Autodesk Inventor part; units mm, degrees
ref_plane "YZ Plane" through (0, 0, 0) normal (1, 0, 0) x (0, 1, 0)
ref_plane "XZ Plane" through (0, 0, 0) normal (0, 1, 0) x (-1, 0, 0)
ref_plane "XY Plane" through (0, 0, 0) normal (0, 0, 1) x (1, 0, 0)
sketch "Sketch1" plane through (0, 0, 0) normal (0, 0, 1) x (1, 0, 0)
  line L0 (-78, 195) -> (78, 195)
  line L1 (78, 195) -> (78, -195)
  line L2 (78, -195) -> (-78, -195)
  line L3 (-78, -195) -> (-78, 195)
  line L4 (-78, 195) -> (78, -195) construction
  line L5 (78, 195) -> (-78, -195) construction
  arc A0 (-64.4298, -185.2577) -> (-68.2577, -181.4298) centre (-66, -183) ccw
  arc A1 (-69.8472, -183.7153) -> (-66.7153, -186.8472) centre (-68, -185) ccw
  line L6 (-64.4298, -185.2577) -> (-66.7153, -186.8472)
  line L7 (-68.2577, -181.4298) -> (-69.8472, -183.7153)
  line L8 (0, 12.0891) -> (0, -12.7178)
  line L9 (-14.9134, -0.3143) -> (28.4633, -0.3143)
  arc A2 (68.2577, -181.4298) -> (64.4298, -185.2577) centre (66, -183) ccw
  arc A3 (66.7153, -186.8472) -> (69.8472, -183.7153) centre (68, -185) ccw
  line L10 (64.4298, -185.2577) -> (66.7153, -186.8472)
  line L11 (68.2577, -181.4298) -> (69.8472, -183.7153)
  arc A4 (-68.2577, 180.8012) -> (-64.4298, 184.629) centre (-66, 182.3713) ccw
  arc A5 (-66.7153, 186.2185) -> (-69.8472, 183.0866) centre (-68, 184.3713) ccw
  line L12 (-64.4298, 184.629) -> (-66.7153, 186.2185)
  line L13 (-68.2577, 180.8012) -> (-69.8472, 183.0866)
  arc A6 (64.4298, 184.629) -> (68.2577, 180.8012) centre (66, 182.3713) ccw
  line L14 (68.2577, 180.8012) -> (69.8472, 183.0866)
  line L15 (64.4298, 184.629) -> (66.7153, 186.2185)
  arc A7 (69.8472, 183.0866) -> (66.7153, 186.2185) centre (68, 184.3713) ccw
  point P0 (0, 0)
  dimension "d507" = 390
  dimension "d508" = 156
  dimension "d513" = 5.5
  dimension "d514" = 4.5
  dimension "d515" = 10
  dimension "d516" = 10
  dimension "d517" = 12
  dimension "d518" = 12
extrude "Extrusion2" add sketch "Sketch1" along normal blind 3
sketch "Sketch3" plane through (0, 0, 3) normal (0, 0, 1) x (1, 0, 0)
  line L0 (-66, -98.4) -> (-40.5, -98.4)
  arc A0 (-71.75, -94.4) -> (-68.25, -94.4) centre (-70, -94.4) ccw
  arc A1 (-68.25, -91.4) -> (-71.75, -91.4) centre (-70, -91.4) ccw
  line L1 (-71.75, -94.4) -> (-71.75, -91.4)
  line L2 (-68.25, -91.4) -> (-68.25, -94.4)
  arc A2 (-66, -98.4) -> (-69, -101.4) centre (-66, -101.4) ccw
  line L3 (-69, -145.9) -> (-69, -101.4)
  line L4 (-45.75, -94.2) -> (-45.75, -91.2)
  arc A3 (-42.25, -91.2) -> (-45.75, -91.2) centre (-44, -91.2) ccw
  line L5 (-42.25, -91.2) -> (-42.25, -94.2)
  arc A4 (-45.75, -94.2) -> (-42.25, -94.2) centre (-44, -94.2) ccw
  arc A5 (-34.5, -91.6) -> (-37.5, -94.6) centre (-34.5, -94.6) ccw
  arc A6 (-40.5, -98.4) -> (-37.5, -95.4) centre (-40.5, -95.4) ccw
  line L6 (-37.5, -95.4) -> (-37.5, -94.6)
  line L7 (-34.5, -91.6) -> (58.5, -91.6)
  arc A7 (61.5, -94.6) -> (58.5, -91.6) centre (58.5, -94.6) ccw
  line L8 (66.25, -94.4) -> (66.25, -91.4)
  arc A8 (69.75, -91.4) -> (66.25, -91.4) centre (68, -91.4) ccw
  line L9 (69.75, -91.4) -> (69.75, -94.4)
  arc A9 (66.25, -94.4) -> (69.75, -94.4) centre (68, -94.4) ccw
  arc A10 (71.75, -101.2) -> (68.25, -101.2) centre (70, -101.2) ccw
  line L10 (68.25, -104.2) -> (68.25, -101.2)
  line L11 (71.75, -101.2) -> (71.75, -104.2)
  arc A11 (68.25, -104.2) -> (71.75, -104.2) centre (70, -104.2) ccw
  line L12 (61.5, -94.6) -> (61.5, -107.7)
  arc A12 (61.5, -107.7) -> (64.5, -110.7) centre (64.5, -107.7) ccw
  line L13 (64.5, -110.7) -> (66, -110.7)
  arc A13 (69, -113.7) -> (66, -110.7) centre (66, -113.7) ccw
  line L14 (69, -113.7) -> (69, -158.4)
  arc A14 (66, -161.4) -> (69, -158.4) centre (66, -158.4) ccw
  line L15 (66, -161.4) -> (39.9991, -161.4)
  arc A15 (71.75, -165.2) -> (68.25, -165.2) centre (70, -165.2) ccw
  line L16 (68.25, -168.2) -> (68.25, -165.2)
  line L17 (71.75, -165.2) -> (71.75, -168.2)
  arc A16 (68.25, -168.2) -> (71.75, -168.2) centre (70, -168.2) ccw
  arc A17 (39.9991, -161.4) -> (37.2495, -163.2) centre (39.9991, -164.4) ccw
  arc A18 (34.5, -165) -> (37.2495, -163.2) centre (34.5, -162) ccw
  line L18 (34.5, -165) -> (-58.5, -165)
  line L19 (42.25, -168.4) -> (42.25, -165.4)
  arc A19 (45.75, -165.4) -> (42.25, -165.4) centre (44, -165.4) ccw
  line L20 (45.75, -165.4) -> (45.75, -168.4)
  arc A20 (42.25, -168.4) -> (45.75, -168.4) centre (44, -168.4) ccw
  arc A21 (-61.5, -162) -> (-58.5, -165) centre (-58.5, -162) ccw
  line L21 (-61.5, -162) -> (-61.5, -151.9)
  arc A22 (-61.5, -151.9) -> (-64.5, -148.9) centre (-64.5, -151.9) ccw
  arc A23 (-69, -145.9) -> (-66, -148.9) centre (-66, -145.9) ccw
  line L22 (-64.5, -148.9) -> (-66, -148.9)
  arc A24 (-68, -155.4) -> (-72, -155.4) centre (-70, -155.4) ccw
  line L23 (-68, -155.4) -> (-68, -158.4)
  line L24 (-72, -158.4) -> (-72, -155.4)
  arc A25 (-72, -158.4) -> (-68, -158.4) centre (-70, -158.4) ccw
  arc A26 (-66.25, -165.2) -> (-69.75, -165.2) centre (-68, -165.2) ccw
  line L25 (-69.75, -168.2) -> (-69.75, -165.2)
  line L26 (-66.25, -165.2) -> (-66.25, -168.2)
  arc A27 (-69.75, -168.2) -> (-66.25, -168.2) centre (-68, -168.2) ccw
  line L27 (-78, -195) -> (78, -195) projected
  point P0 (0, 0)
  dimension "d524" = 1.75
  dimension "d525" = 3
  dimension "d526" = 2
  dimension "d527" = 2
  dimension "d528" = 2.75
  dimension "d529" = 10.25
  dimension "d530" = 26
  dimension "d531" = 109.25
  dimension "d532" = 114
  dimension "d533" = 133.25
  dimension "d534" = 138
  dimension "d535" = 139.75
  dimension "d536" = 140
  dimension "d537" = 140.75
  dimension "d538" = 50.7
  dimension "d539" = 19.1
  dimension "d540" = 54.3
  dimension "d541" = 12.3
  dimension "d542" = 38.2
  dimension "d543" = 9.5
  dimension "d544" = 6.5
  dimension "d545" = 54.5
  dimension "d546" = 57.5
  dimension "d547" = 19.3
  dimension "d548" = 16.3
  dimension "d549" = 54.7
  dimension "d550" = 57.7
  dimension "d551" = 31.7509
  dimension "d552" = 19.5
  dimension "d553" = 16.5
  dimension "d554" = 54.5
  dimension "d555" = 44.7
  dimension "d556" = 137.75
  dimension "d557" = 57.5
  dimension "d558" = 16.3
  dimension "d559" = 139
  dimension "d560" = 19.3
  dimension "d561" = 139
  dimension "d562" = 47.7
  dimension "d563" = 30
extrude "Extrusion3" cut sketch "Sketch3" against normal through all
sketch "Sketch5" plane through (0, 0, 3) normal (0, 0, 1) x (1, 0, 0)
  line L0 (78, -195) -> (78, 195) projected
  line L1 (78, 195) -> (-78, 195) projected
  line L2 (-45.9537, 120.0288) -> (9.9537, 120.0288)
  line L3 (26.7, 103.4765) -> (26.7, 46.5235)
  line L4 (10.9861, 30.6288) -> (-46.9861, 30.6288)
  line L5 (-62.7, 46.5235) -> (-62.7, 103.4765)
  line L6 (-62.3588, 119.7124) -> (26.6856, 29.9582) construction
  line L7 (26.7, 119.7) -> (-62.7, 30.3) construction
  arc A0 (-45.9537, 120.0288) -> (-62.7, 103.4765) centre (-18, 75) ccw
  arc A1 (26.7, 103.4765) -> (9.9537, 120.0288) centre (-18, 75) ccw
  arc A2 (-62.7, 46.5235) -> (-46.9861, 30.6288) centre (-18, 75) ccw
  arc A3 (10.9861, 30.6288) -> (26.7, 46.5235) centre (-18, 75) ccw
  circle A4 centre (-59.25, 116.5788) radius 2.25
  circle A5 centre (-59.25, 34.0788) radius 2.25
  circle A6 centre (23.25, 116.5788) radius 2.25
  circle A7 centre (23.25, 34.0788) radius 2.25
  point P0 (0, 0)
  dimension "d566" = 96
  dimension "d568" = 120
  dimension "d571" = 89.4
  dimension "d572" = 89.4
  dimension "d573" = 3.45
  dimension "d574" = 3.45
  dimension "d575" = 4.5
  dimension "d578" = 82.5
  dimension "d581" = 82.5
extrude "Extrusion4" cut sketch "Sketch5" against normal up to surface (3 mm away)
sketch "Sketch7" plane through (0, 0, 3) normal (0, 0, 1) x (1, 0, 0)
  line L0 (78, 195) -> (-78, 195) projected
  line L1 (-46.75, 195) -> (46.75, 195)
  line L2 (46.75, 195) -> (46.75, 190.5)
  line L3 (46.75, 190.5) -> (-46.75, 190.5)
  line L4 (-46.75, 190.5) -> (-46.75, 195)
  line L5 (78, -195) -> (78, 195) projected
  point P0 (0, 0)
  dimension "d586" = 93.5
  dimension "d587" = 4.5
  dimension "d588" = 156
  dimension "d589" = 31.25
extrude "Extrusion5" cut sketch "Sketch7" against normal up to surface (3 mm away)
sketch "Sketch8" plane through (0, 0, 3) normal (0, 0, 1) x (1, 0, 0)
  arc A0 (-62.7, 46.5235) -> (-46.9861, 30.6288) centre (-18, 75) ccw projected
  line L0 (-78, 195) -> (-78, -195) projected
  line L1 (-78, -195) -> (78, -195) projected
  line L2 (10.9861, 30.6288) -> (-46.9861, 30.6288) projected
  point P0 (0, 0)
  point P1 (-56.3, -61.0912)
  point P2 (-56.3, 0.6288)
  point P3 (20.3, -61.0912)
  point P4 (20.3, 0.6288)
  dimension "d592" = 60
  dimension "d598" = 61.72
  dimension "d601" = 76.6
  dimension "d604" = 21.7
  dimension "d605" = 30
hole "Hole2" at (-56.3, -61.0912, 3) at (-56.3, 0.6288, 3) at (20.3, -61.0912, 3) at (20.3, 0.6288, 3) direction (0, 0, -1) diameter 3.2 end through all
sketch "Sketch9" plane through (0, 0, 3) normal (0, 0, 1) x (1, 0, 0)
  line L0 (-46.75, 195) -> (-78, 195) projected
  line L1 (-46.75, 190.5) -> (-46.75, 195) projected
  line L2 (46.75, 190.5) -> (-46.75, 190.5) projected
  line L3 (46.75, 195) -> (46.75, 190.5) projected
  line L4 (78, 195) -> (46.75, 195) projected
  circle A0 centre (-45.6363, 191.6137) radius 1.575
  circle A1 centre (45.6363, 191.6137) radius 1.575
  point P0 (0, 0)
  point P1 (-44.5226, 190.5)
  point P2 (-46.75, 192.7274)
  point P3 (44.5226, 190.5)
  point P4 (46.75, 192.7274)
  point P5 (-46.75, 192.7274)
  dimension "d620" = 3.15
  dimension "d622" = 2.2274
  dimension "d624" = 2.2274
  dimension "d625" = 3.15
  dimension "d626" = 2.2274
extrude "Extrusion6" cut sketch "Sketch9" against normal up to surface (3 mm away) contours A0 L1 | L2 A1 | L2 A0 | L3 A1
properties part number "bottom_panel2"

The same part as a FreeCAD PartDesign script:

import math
import FreeCAD as App
import Part
import Sketcher
Q = App.Units.Quantity


def add_polygon(sketch, points):
    """Adds a closed chain of lines whose ends are joined by coincident constraints."""
    first, n = sketch.GeometryCount, len(points)
    for a, b in zip(points, points[1:] + points[:1]):
        sketch.addGeometry(Part.LineSegment(App.Vector(*a, 0), App.Vector(*b, 0)), False)
    for i in range(n):
        sketch.addConstraint(Sketcher.Constraint("Coincident", first + i, 2, first + (i + 1) % n, 1))

doc = App.newDocument("Part")
params = doc.addObject("Spreadsheet::Sheet", "Params")
for row, (alias, value) in enumerate([
    ("sketch1_width", "156 mm"),
    ("sketch1_height", "390 mm"),
    ("sketch1_radius", "2.75 mm"),
    ("sketch1_radius2", "2.25 mm"),
    ("pad1_length", "3 mm"),
    ("sketch2_radius", "3 mm"),
    ("sketch2_radius2", "2 mm"),
    ("sketch2_height", "3 mm"),
    ("sketch2_radius3", "1.75 mm"),
    ("sketch2_height2", "44.7 mm"),
    ("sketch3_diameter", "4.5 mm"),
    ("sketch3_radius", "53 mm"),
    ("pocket2_length", "3 mm"),
    ("sketch4_width", "93.5 mm"),
    ("sketch4_height", "4.5 mm"),
    ("pocket3_length", "3 mm"),
    ("sketch5_diameter", "3.2 mm"),
    ("hole_diameter", "3.2 mm"),
    ("pocket4_length", "3 mm"),
], start=1):
    params.set(f"A{row}", alias)
    params.set(f"B{row}", "=" + value)
    params.setAlias(f"B{row}", alias)

body = doc.addObject("PartDesign::Body", "Body")

# Sketch on XY plane
sketch1 = body.newObject("Sketcher::SketchObject", "Sketch")
sketch1.AttachmentSupport = (doc.getObject("XY_Plane"), [""])
sketch1.MapMode = "FlatFace"
add_polygon(sketch1, [(78, 195), (-78, 195), (-78, -195), (78, -195)])  # lines 0-3
sketch1.addGeometry(Part.ArcOfCircle(Part.Circle(App.Vector(-66, -183, 0), App.Vector(0, 0, 1), 2.8), math.radians(-55), math.radians(145)), False)  # 4
sketch1.addGeometry(Part.LineSegment(App.Vector(-64.4, -185.3, 0), App.Vector(-66.7, -186.8, 0)), False)  # 5
sketch1.addGeometry(Part.ArcOfCircle(Part.Circle(App.Vector(-68, -185, 0), App.Vector(0, 0, 1), 2.3), math.radians(145), math.radians(305)), False)  # 6
sketch1.addGeometry(Part.LineSegment(App.Vector(-69.8, -183.7, 0), App.Vector(-68.3, -181.4, 0)), False)  # 7
sketch1.addGeometry(Part.ArcOfCircle(Part.Circle(App.Vector(66, -183, 0), App.Vector(0, 0, 1), 2.8), math.radians(35), math.radians(235)), False)  # 8
sketch1.addGeometry(Part.LineSegment(App.Vector(68.3, -181.4, 0), App.Vector(69.8, -183.7, 0)), False)  # 9
sketch1.addGeometry(Part.ArcOfCircle(Part.Circle(App.Vector(68, -185, 0), App.Vector(0, 0, 1), 2.3), math.radians(-125), math.radians(35)), False)  # 10
sketch1.addGeometry(Part.LineSegment(App.Vector(66.7, -186.8, 0), App.Vector(64.4, -185.3, 0)), False)  # 11
sketch1.addGeometry(Part.ArcOfCircle(Part.Circle(App.Vector(-66, 182.4, 0), App.Vector(0, 0, 1), 2.7), math.radians(-145), math.radians(55)), False)  # 12
sketch1.addGeometry(Part.LineSegment(App.Vector(-68.3, 180.8, 0), App.Vector(-69.8, 183.1, 0)), False)  # 13
sketch1.addGeometry(Part.ArcOfCircle(Part.Circle(App.Vector(-68, 184.4, 0), App.Vector(0, 0, 1), 2.3), math.radians(55), math.radians(215)), False)  # 14
sketch1.addGeometry(Part.LineSegment(App.Vector(-66.7, 186.2, 0), App.Vector(-64.4, 184.6, 0)), False)  # 15
sketch1.addGeometry(Part.ArcOfCircle(Part.Circle(App.Vector(66, 182.4, 0), App.Vector(0, 0, 1), 2.8), math.radians(125), math.radians(325)), False)  # 16
sketch1.addGeometry(Part.LineSegment(App.Vector(64.4, 184.6, 0), App.Vector(66.7, 186.2, 0)), False)  # 17
sketch1.addGeometry(Part.ArcOfCircle(Part.Circle(App.Vector(68, 184.4, 0), App.Vector(0, 0, 1), 2.3), math.radians(-35), math.radians(125)), False)  # 18
sketch1.addGeometry(Part.LineSegment(App.Vector(69.8, 183.1, 0), App.Vector(68.3, 180.8, 0)), False)  # 19
sketch1.addConstraint([
    Sketcher.Constraint("Tangent", 4, 1, 5, 1),
    Sketcher.Constraint("Tangent", 5, 2, 6, 2),
    Sketcher.Constraint("Tangent", 6, 1, 7, 1),
    Sketcher.Constraint("Tangent", 7, 2, 4, 2),
    Sketcher.Constraint("Tangent", 8, 1, 9, 1),
    Sketcher.Constraint("Tangent", 9, 2, 10, 2),
    Sketcher.Constraint("Tangent", 10, 1, 11, 1),
    Sketcher.Constraint("Tangent", 11, 2, 8, 2),
    Sketcher.Constraint("Tangent", 12, 1, 13, 1),
    Sketcher.Constraint("Tangent", 13, 2, 14, 2),
    Sketcher.Constraint("Tangent", 14, 1, 15, 1),
    Sketcher.Constraint("Tangent", 15, 2, 12, 2),
    Sketcher.Constraint("Tangent", 16, 1, 17, 1),
    Sketcher.Constraint("Tangent", 17, 2, 18, 2),
    Sketcher.Constraint("Tangent", 18, 1, 19, 1),
    Sketcher.Constraint("Tangent", 19, 2, 16, 2),
    Sketcher.Constraint("Horizontal", 0),
    Sketcher.Constraint("Vertical", 1),
    Sketcher.Constraint("Horizontal", 2),
    Sketcher.Constraint("Vertical", 3),
    Sketcher.Constraint("Equal", 4, 8),
    Sketcher.Constraint("Equal", 6, 10),
    Sketcher.Constraint("Equal", 8, 12),
    Sketcher.Constraint("Equal", 10, 14),
    Sketcher.Constraint("Equal", 12, 16),
    Sketcher.Constraint("Equal", 14, 18),
    Sketcher.Constraint("Symmetric", 0, 2, 2, 2, -1, 1),
    Sketcher.Constraint("Symmetric", 4, 3, 8, 3, -2),
    Sketcher.Constraint("Symmetric", 6, 3, 10, 3, -2),
    Sketcher.Constraint("Symmetric", 12, 3, 16, 3, -2),
    Sketcher.Constraint("Symmetric", 14, 3, 18, 3, -2),
    Sketcher.Constraint("Perpendicular", 5, 9),
    Sketcher.Constraint("Parallel", 9, 13),
    Sketcher.Constraint("Parallel", 11, 15),
    Sketcher.Constraint("Vertical", 4, 3, 12, 3),
    Sketcher.Constraint("DistanceX", 0, 2, 0, 1, Q("156 mm")),
    Sketcher.Constraint("DistanceY", 1, 2, 1, 1, Q("390 mm")),
    Sketcher.Constraint("Radius", 4, Q("2.75 mm")),
    Sketcher.Constraint("Radius", 6, Q("2.25 mm")),
    Sketcher.Constraint("DistanceX", 0, 2, 14, 3, Q("10 mm")),
    Sketcher.Constraint("DistanceX", 0, 2, 12, 3, Q("12 mm")),
    Sketcher.Constraint("DistanceY", 1, 2, 6, 3, Q("10 mm")),
    Sketcher.Constraint("DistanceY", -1, 1, 15, 2, Q("184.629 mm")),
])
sketch1.setExpression("Constraints[39]", "Params.sketch1_width")
sketch1.setExpression("Constraints[40]", "Params.sketch1_height")
sketch1.setExpression("Constraints[41]", "Params.sketch1_radius")
sketch1.setExpression("Constraints[42]", "Params.sketch1_radius2")
pad1 = body.newObject("PartDesign::Pad", "Pad")
pad1.Profile = sketch1
pad1.setExpression("Length", "Params.pad1_length")

# Sketch on XY plane
sketch2 = body.newObject("Sketcher::SketchObject", "Sketch001")
sketch2.AttachmentSupport = (doc.getObject("XY_Plane"), [""])
sketch2.MapMode = "FlatFace"
sketch2.AttachmentOffset = App.Placement(App.Vector(0, 0, 3), App.Rotation())
sketch2.addGeometry([
    Part.LineSegment(App.Vector(-40.5, -98.4, 0), App.Vector(-66, -98.4, 0)),  # 0
    Part.ArcOfCircle(Part.Circle(App.Vector(-66, -101.4, 0), App.Vector(0, 0, 1), 3), math.radians(90), math.radians(180)),  # 1
    Part.LineSegment(App.Vector(-69, -101.4, 0), App.Vector(-69, -145.9, 0)),  # 2
    Part.ArcOfCircle(Part.Circle(App.Vector(-66, -145.9, 0), App.Vector(0, 0, 1), 3), math.radians(180), math.radians(270)),  # 3
    Part.LineSegment(App.Vector(-66, -148.9, 0), App.Vector(-64.5, -148.9, 0)),  # 4
    Part.ArcOfCircle(Part.Circle(App.Vector(-64.5, -151.9, 0), App.Vector(0, 0, 1), 3), math.radians(0), math.radians(90)),  # 5
    Part.LineSegment(App.Vector(-61.5, -151.9, 0), App.Vector(-61.5, -162, 0)),  # 6
    Part.ArcOfCircle(Part.Circle(App.Vector(-58.5, -162, 0), App.Vector(0, 0, 1), 3), math.radians(180), math.radians(270)),  # 7
    Part.LineSegment(App.Vector(-58.5, -165, 0), App.Vector(34.5, -165, 0)),  # 8
    Part.ArcOfCircle(Part.Circle(App.Vector(34.5, -162, 0), App.Vector(0, 0, 1), 3), math.radians(-90), math.radians(-24)),  # 9
    Part.ArcOfCircle(Part.Circle(App.Vector(40, -164.4, 0), App.Vector(0, 0, 1), 3), math.radians(90), math.radians(156)),  # 10
    Part.LineSegment(App.Vector(40, -161.4, 0), App.Vector(66, -161.4, 0)),  # 11
    Part.ArcOfCircle(Part.Circle(App.Vector(66, -158.4, 0), App.Vector(0, 0, 1), 3), math.radians(-90), math.radians(0)),  # 12
    Part.LineSegment(App.Vector(69, -158.4, 0), App.Vector(69, -113.7, 0)),  # 13
    Part.ArcOfCircle(Part.Circle(App.Vector(66, -113.7, 0), App.Vector(0, 0, 1), 3), math.radians(0), math.radians(90)),  # 14
    Part.LineSegment(App.Vector(66, -110.7, 0), App.Vector(64.5, -110.7, 0)),  # 15
    Part.ArcOfCircle(Part.Circle(App.Vector(64.5, -107.7, 0), App.Vector(0, 0, 1), 3), math.radians(180), math.radians(270)),  # 16
    Part.LineSegment(App.Vector(61.5, -107.7, 0), App.Vector(61.5, -94.6, 0)),  # 17
    Part.ArcOfCircle(Part.Circle(App.Vector(58.5, -94.6, 0), App.Vector(0, 0, 1), 3), math.radians(0), math.radians(90)),  # 18
    Part.LineSegment(App.Vector(58.5, -91.6, 0), App.Vector(-34.5, -91.6, 0)),  # 19
    Part.ArcOfCircle(Part.Circle(App.Vector(-34.5, -94.6, 0), App.Vector(0, 0, 1), 3), math.radians(90), math.radians(180)),  # 20
    Part.LineSegment(App.Vector(-37.5, -94.6, 0), App.Vector(-37.5, -95.4, 0)),  # 21
    Part.ArcOfCircle(Part.Circle(App.Vector(-40.5, -95.4, 0), App.Vector(0, 0, 1), 3), math.radians(-90), math.radians(0)),  # 22
    Part.LineSegment(App.Vector(-71.8, -91.4, 0), App.Vector(-71.8, -94.4, 0)),  # 23
    Part.ArcOfCircle(Part.Circle(App.Vector(-70, -94.4, 0), App.Vector(0, 0, 1), 1.8), math.radians(180), math.radians(360)),  # 24
    Part.LineSegment(App.Vector(-68.2, -94.4, 0), App.Vector(-68.2, -91.4, 0)),  # 25
    Part.ArcOfCircle(Part.Circle(App.Vector(-70, -91.4, 0), App.Vector(0, 0, 1), 1.8), math.radians(0), math.radians(180)),  # 26
    Part.LineSegment(App.Vector(-45.8, -91.2, 0), App.Vector(-45.8, -94.2, 0)),  # 27
    Part.ArcOfCircle(Part.Circle(App.Vector(-44, -94.2, 0), App.Vector(0, 0, 1), 1.8), math.radians(180), math.radians(360)),  # 28
    Part.LineSegment(App.Vector(-42.2, -94.2, 0), App.Vector(-42.2, -91.2, 0)),  # 29
    Part.ArcOfCircle(Part.Circle(App.Vector(-44, -91.2, 0), App.Vector(0, 0, 1), 1.8), math.radians(0), math.radians(180)),  # 30
    Part.LineSegment(App.Vector(66.2, -91.4, 0), App.Vector(66.2, -94.4, 0)),  # 31
    Part.ArcOfCircle(Part.Circle(App.Vector(68, -94.4, 0), App.Vector(0, 0, 1), 1.8), math.radians(180), math.radians(360)),  # 32
    Part.LineSegment(App.Vector(69.8, -94.4, 0), App.Vector(69.8, -91.4, 0)),  # 33
    Part.ArcOfCircle(Part.Circle(App.Vector(68, -91.4, 0), App.Vector(0, 0, 1), 1.8), math.radians(0), math.radians(180)),  # 34
    Part.LineSegment(App.Vector(71.8, -104.2, 0), App.Vector(71.8, -101.2, 0)),  # 35
    Part.ArcOfCircle(Part.Circle(App.Vector(70, -101.2, 0), App.Vector(0, 0, 1), 1.8), math.radians(0), math.radians(180)),  # 36
    Part.LineSegment(App.Vector(68.2, -101.2, 0), App.Vector(68.2, -104.2, 0)),  # 37
    Part.ArcOfCircle(Part.Circle(App.Vector(70, -104.2, 0), App.Vector(0, 0, 1), 1.8), math.radians(180), math.radians(360)),  # 38
    Part.LineSegment(App.Vector(71.8, -168.2, 0), App.Vector(71.8, -165.2, 0)),  # 39
    Part.ArcOfCircle(Part.Circle(App.Vector(70, -165.2, 0), App.Vector(0, 0, 1), 1.8), math.radians(0), math.radians(180)),  # 40
    Part.LineSegment(App.Vector(68.2, -165.2, 0), App.Vector(68.2, -168.2, 0)),  # 41
    Part.ArcOfCircle(Part.Circle(App.Vector(70, -168.2, 0), App.Vector(0, 0, 1), 1.8), math.radians(180), math.radians(360)),  # 42
    Part.LineSegment(App.Vector(42.2, -165.4, 0), App.Vector(42.2, -168.4, 0)),  # 43
    Part.ArcOfCircle(Part.Circle(App.Vector(44, -168.4, 0), App.Vector(0, 0, 1), 1.8), math.radians(180), math.radians(360)),  # 44
    Part.LineSegment(App.Vector(45.8, -168.4, 0), App.Vector(45.8, -165.4, 0)),  # 45
    Part.ArcOfCircle(Part.Circle(App.Vector(44, -165.4, 0), App.Vector(0, 0, 1), 1.8), math.radians(0), math.radians(180)),  # 46
    Part.LineSegment(App.Vector(-68, -158.4, 0), App.Vector(-68, -155.4, 0)),  # 47
    Part.ArcOfCircle(Part.Circle(App.Vector(-70, -155.4, 0), App.Vector(0, 0, 1), 2), math.radians(0), math.radians(180)),  # 48
    Part.LineSegment(App.Vector(-72, -155.4, 0), App.Vector(-72, -158.4, 0)),  # 49
    Part.ArcOfCircle(Part.Circle(App.Vector(-70, -158.4, 0), App.Vector(0, 0, 1), 2), math.radians(180), math.radians(360)),  # 50
    Part.LineSegment(App.Vector(-66.2, -168.2, 0), App.Vector(-66.2, -165.2, 0)),  # 51
    Part.ArcOfCircle(Part.Circle(App.Vector(-68, -165.2, 0), App.Vector(0, 0, 1), 1.8), math.radians(0), math.radians(180)),  # 52
    Part.LineSegment(App.Vector(-69.8, -165.2, 0), App.Vector(-69.8, -168.2, 0)),  # 53
    Part.ArcOfCircle(Part.Circle(App.Vector(-68, -168.2, 0), App.Vector(0, 0, 1), 1.8), math.radians(180), math.radians(360)),  # 54
], False)
sketch2.addConstraint([
    Sketcher.Constraint("Tangent", 0, 2, 1, 1),
    Sketcher.Constraint("Tangent", 1, 2, 2, 1),
    Sketcher.Constraint("Tangent", 2, 2, 3, 1),
    Sketcher.Constraint("Tangent", 3, 2, 4, 1),
    Sketcher.Constraint("Tangent", 4, 2, 5, 2),
    Sketcher.Constraint("Tangent", 5, 1, 6, 1),
    Sketcher.Constraint("Tangent", 6, 2, 7, 1),
    Sketcher.Constraint("Tangent", 7, 2, 8, 1),
    Sketcher.Constraint("Tangent", 8, 2, 9, 1),
    Sketcher.Constraint("Tangent", 9, 2, 10, 2),
    Sketcher.Constraint("Tangent", 10, 1, 11, 1),
    Sketcher.Constraint("Tangent", 11, 2, 12, 1),
    Sketcher.Constraint("Tangent", 12, 2, 13, 1),
    Sketcher.Constraint("Tangent", 13, 2, 14, 1),
    Sketcher.Constraint("Tangent", 14, 2, 15, 1),
    Sketcher.Constraint("Tangent", 15, 2, 16, 2),
    Sketcher.Constraint("Tangent", 16, 1, 17, 1),
    Sketcher.Constraint("Tangent", 17, 2, 18, 1),
    Sketcher.Constraint("Tangent", 18, 2, 19, 1),
    Sketcher.Constraint("Tangent", 19, 2, 20, 1),
    Sketcher.Constraint("Tangent", 20, 2, 21, 1),
    Sketcher.Constraint("Tangent", 21, 2, 22, 2),
    Sketcher.Constraint("Tangent", 22, 1, 0, 1),
    Sketcher.Constraint("Tangent", 23, 2, 24, 1),
    Sketcher.Constraint("Tangent", 24, 2, 25, 1),
    Sketcher.Constraint("Tangent", 25, 2, 26, 1),
    Sketcher.Constraint("Tangent", 26, 2, 23, 1),
    Sketcher.Constraint("Tangent", 27, 2, 28, 1),
    Sketcher.Constraint("Tangent", 28, 2, 29, 1),
    Sketcher.Constraint("Tangent", 29, 2, 30, 1),
    Sketcher.Constraint("Tangent", 30, 2, 27, 1),
    Sketcher.Constraint("Tangent", 31, 2, 32, 1),
    Sketcher.Constraint("Tangent", 32, 2, 33, 1),
    Sketcher.Constraint("Tangent", 33, 2, 34, 1),
    Sketcher.Constraint("Tangent", 34, 2, 31, 1),
    Sketcher.Constraint("Tangent", 35, 2, 36, 1),
    Sketcher.Constraint("Tangent", 36, 2, 37, 1),
    Sketcher.Constraint("Tangent", 37, 2, 38, 1),
    Sketcher.Constraint("Tangent", 38, 2, 35, 1),
    Sketcher.Constraint("Tangent", 39, 2, 40, 1),
    Sketcher.Constraint("Tangent", 40, 2, 41, 1),
    Sketcher.Constraint("Tangent", 41, 2, 42, 1),
    Sketcher.Constraint("Tangent", 42, 2, 39, 1),
    Sketcher.Constraint("Tangent", 43, 2, 44, 1),
    Sketcher.Constraint("Tangent", 44, 2, 45, 1),
    Sketcher.Constraint("Tangent", 45, 2, 46, 1),
    Sketcher.Constraint("Tangent", 46, 2, 43, 1),
    Sketcher.Constraint("Tangent", 47, 2, 48, 1),
    Sketcher.Constraint("Tangent", 48, 2, 49, 1),
    Sketcher.Constraint("Tangent", 49, 2, 50, 1),
    Sketcher.Constraint("Tangent", 50, 2, 47, 1),
    Sketcher.Constraint("Tangent", 51, 2, 52, 1),
    Sketcher.Constraint("Tangent", 52, 2, 53, 1),
    Sketcher.Constraint("Tangent", 53, 2, 54, 1),
    Sketcher.Constraint("Tangent", 54, 2, 51, 1),
    Sketcher.Constraint("Horizontal", 0),
    Sketcher.Constraint("Vertical", 2),
    Sketcher.Constraint("Horizontal", 4),
    Sketcher.Constraint("Vertical", 6),
    Sketcher.Constraint("Horizontal", 8),
    Sketcher.Constraint("Horizontal", 11),
    Sketcher.Constraint("Vertical", 13),
    Sketcher.Constraint("Horizontal", 15),
    Sketcher.Constraint("Vertical", 17),
    Sketcher.Constraint("Horizontal", 19),
    Sketcher.Constraint("Vertical", 21),
    Sketcher.Constraint("Vertical", 23),
    Sketcher.Constraint("Vertical", 25),
    Sketcher.Constraint("Vertical", 27),
    Sketcher.Constraint("Vertical", 29),
    Sketcher.Constraint("Vertical", 31),
    Sketcher.Constraint("Vertical", 33),
    Sketcher.Constraint("Vertical", 35),
    Sketcher.Constraint("Vertical", 37),
    Sketcher.Constraint("Vertical", 39),
    Sketcher.Constraint("Vertical", 41),
    Sketcher.Constraint("Vertical", 43),
    Sketcher.Constraint("Vertical", 45),
    Sketcher.Constraint("Vertical", 47),
    Sketcher.Constraint("Vertical", 49),
    Sketcher.Constraint("Vertical", 51),
    Sketcher.Constraint("Vertical", 53),
    Sketcher.Constraint("Equal", 1, 3),
    Sketcher.Constraint("Equal", 3, 5),
    Sketcher.Constraint("Equal", 5, 7),
    Sketcher.Constraint("Equal", 7, 9),
    Sketcher.Constraint("Equal", 9, 10),
    Sketcher.Constraint("Equal", 10, 12),
    Sketcher.Constraint("Equal", 12, 14),
    Sketcher.Constraint("Equal", 14, 16),
    Sketcher.Constraint("Equal", 16, 18),
    Sketcher.Constraint("Equal", 18, 20),
    Sketcher.Constraint("Equal", 20, 22),
    Sketcher.Constraint("Equal", 26, 28),
    Sketcher.Constraint("Equal", 30, 32),
    Sketcher.Constraint("Equal", 34, 36),
    Sketcher.Constraint("Equal", 38, 40),
    Sketcher.Constraint("Equal", 42, 44),
    Sketcher.Constraint("Equal", 46, 52),
    Sketcher.Constraint("Horizontal", 24, 3, 32, 3),
    Sketcher.Constraint("Horizontal", 26, 3, 34, 3),
    Sketcher.Constraint("Horizontal", 12, 3, 50, 3),
    Sketcher.Constraint("Horizontal", 40, 3, 52, 3),
    Sketcher.Constraint("Horizontal", 42, 3, 54, 3),
    Sketcher.Constraint("Vertical", 38, 3, 40, 3),
    Sketcher.Constraint("Vertical", 26, 3, 48, 3),
    Sketcher.Constraint("Vertical", 54, 3, 47, 2),
    Sketcher.Constraint("Equal", 4, 15),
    Sketcher.Constraint("Equal", 8, 19),
    Sketcher.Constraint("Equal", 25, 27),
    Sketcher.Constraint("Equal", 33, 35),
    Sketcher.Constraint("Equal", 37, 39),
    Sketcher.Constraint("Equal", 41, 43),
    Sketcher.Constraint("Equal", 45, 47),
    Sketcher.Constraint("Radius", 1, Q("3 mm")),
    Sketcher.Constraint("Radius", 48, Q("2 mm")),
    Sketcher.Constraint("DistanceY", 23, 2, 23, 1, Q("3 mm")),
    Sketcher.Constraint("Radius", 24, Q("1.75 mm")),
    Sketcher.Constraint("DistanceY", 13, 1, 13, 2, Q("44.7 mm")),
    Sketcher.Constraint("DistanceX", 8, 1, 8, 2, Q("93 mm")),
    Sketcher.Constraint("DistanceX", 0, 2, 0, 1, Q("25.5 mm")),
    Sketcher.Constraint("DistanceX", 4, 1, 4, 2, Q("1.5 mm")),
    Sketcher.Constraint("DistanceY", 2, 2, 2, 1, Q("44.5 mm")),
    Sketcher.Constraint("DistanceY", 6, 2, 6, 1, Q("10.1 mm")),
    Sketcher.Constraint("DistanceY", 17, 1, 17, 2, Q("13.1 mm")),
    Sketcher.Constraint("DistanceY", 21, 2, 21, 1, Q("0.8 mm")),
    Sketcher.Constraint("DistanceX", 1, 3, -1, 1, Q("66 mm")),
    Sketcher.Constraint("DistanceY", 7, 3, -1, 1, Q("162 mm")),
    Sketcher.Constraint("DistanceX", 24, 3, -1, 1, Q("70 mm")),
    Sketcher.Constraint("DistanceX", 28, 3, -1, 1, Q("44 mm")),
    Sketcher.Constraint("DistanceX", -1, 1, 32, 3, Q("68 mm")),
    Sketcher.Constraint("DistanceX", -1, 1, 36, 3, Q("70 mm")),
    Sketcher.Constraint("DistanceX", -1, 1, 44, 3, Q("44 mm")),
    Sketcher.Constraint("DistanceY", 24, 3, -1, 1, Q("94.4 mm")),
    Sketcher.Constraint("DistanceY", 28, 3, -1, 1, Q("94.2 mm")),
    Sketcher.Constraint("DistanceY", 36, 3, -1, 1, Q("101.2 mm")),
    Sketcher.Constraint("DistanceY", 40, 3, -1, 1, Q("165.2 mm")),
    Sketcher.Constraint("DistanceY", 44, 3, -1, 1, Q("168.4 mm")),
])
sketch2.setExpression("Constraints[114]", "Params.sketch2_radius")
sketch2.setExpression("Constraints[115]", "Params.sketch2_radius2")
sketch2.setExpression("Constraints[116]", "Params.sketch2_height")
sketch2.setExpression("Constraints[117]", "Params.sketch2_radius3")
sketch2.setExpression("Constraints[118]", "Params.sketch2_height2")
pocket1 = body.newObject("PartDesign::Pocket", "Pocket")
pocket1.Profile = sketch2
pocket1.Type = "ThroughAll"

# Sketch on XY plane
sketch3 = body.newObject("Sketcher::SketchObject", "Sketch002")
sketch3.AttachmentSupport = (doc.getObject("XY_Plane"), [""])
sketch3.MapMode = "FlatFace"
sketch3.AttachmentOffset = App.Placement(App.Vector(0, 0, 3), App.Rotation())
sketch3.addGeometry([
    Part.LineSegment(App.Vector(10, 120, 0), App.Vector(-46, 120, 0)),  # 0
    Part.ArcOfCircle(Part.Circle(App.Vector(-18, 75, 0), App.Vector(0, 0, 1), 53), math.radians(122), math.radians(148)),  # 1
    Part.LineSegment(App.Vector(-62.7, 103.5, 0), App.Vector(-62.7, 46.5, 0)),  # 2
    Part.ArcOfCircle(Part.Circle(App.Vector(-18, 75, 0), App.Vector(0, 0, 1), 53), math.radians(-148), math.radians(-123)),  # 3
    Part.LineSegment(App.Vector(-47, 30.6, 0), App.Vector(11, 30.6, 0)),  # 4
    Part.ArcOfCircle(Part.Circle(App.Vector(-18, 75, 0), App.Vector(0, 0, 1), 53), math.radians(-57), math.radians(-32)),  # 5
    Part.LineSegment(App.Vector(26.7, 46.5, 0), App.Vector(26.7, 103.5, 0)),  # 6
    Part.ArcOfCircle(Part.Circle(App.Vector(-18, 75, 0), App.Vector(0, 0, 1), 53), math.radians(32), math.radians(58)),  # 7
    Part.Circle(App.Vector(-59.2, 116.6, 0), App.Vector(0, 0, 1), 2.2),  # 8
    Part.Circle(App.Vector(-59.2, 34.1, 0), App.Vector(0, 0, 1), 2.2),  # 9
    Part.Circle(App.Vector(23.2, 116.6, 0), App.Vector(0, 0, 1), 2.2),  # 10
    Part.Circle(App.Vector(23.2, 34.1, 0), App.Vector(0, 0, 1), 2.2),  # 11
], False)
sketch3.addConstraint([
    Sketcher.Constraint("Coincident", 0, 2, 1, 1),
    Sketcher.Constraint("Coincident", 1, 2, 2, 1),
    Sketcher.Constraint("Coincident", 2, 2, 3, 1),
    Sketcher.Constraint("Coincident", 3, 2, 4, 1),
    Sketcher.Constraint("Coincident", 4, 2, 5, 1),
    Sketcher.Constraint("Coincident", 5, 2, 6, 1),
    Sketcher.Constraint("Coincident", 6, 2, 7, 1),
    Sketcher.Constraint("Coincident", 7, 2, 0, 1),
    Sketcher.Constraint("Horizontal", 0),
    Sketcher.Constraint("Vertical", 2),
    Sketcher.Constraint("Horizontal", 4),
    Sketcher.Constraint("Vertical", 6),
    Sketcher.Constraint("Coincident", 3, 3, 1, 3),
    Sketcher.Constraint("Coincident", 5, 3, 1, 3),
    Sketcher.Constraint("Coincident", 7, 3, 1, 3),
    Sketcher.Constraint("Equal", 1, 3),
    Sketcher.Constraint("Equal", 3, 5),
    Sketcher.Constraint("Equal", 5, 7),
    Sketcher.Constraint("Equal", 8, 9),
    Sketcher.Constraint("Equal", 9, 10),
    Sketcher.Constraint("Equal", 10, 11),
    Sketcher.Constraint("Horizontal", 8, 3, 10, 3),
    Sketcher.Constraint("Horizontal", 9, 3, 11, 3),
    Sketcher.Constraint("Horizontal", 2, 2, 5, 2),
    Sketcher.Constraint("Vertical", 8, 3, 9, 3),
    Sketcher.Constraint("Vertical", 10, 3, 11, 3),
    Sketcher.Constraint("Diameter", 8, Q("4.5 mm")),
    Sketcher.Constraint("Radius", 1, Q("53 mm")),
    Sketcher.Constraint("DistanceY", 9, 3, 8, 3, Q("82.5 mm")),
    Sketcher.Constraint("DistanceX", 8, 3, 10, 3, Q("82.5 mm")),
    Sketcher.Constraint("DistanceY", 8, 3, 0, 2, Q("3.45 mm")),
    Sketcher.Constraint("DistanceX", 1, 2, 8, 3, Q("3.45 mm")),
    Sketcher.Constraint("DistanceY", 3, 2, 9, 3, Q("3.45 mm")),
    Sketcher.Constraint("DistanceX", 11, 3, 5, 2, Q("3.45 mm")),
    Sketcher.Constraint("DistanceX", 1, 3, -1, 1, Q("18 mm")),
    Sketcher.Constraint("DistanceY", -1, 1, 1, 3, Q("75 mm")),
    Sketcher.Constraint("DistanceX", 0, 2, 0, 1, Q("55.9074 mm")),
])
sketch3.setExpression("Constraints[26]", "Params.sketch3_diameter")
sketch3.setExpression("Constraints[27]", "Params.sketch3_radius")
pocket2 = body.newObject("PartDesign::Pocket", "Pocket001")
pocket2.Profile = sketch3
pocket2.setExpression("Length", "Params.pocket2_length")

# Sketch on XY plane
sketch4 = body.newObject("Sketcher::SketchObject", "Sketch003")
sketch4.AttachmentSupport = (doc.getObject("XY_Plane"), [""])
sketch4.MapMode = "FlatFace"
sketch4.AttachmentOffset = App.Placement(App.Vector(0, 0, 3), App.Rotation())
add_polygon(sketch4, [(46.8, 190.5), (46.8, 195), (-46.8, 195), (-46.8, 190.5)])  # lines 0-3
sketch4.addConstraint([
    Sketcher.Constraint("Vertical", 0),
    Sketcher.Constraint("Horizontal", 1),
    Sketcher.Constraint("Vertical", 2),
    Sketcher.Constraint("Horizontal", 3),
    Sketcher.Constraint("DistanceX", 1, 2, 1, 1, Q("93.5 mm")),
    Sketcher.Constraint("DistanceY", 0, 1, 0, 2, Q("4.5 mm")),
    Sketcher.Constraint("DistanceY", -1, 1, 0, 2, Q("195 mm")),
    Sketcher.Constraint("DistanceX", -1, 1, 0, 2, Q("46.75 mm")),
])
sketch4.setExpression("Constraints[8]", "Params.sketch4_width")
sketch4.setExpression("Constraints[9]", "Params.sketch4_height")
pocket3 = body.newObject("PartDesign::Pocket", "Pocket002")
pocket3.Profile = sketch4
pocket3.setExpression("Length", "Params.pocket3_length")

# Sketch on XY plane
sketch5 = body.newObject("Sketcher::SketchObject", "Sketch004")
sketch5.AttachmentSupport = (doc.getObject("XY_Plane"), [""])
sketch5.MapMode = "FlatFace"
sketch5.AttachmentOffset = App.Placement(App.Vector(0, 0, 3), App.Rotation())
sketch5.addGeometry([
    Part.Circle(App.Vector(-56.3, -61.1, 0), App.Vector(0, 0, 1), 1.6),
    Part.Circle(App.Vector(-56.3, 0.6, 0), App.Vector(0, 0, 1), 1.6),
    Part.Circle(App.Vector(20.3, -61.1, 0), App.Vector(0, 0, 1), 1.6),
    Part.Circle(App.Vector(20.3, 0.6, 0), App.Vector(0, 0, 1), 1.6),
], False)
sketch5.addConstraint([
    Sketcher.Constraint("Equal", 0, 1),
    Sketcher.Constraint("Equal", 1, 2),
    Sketcher.Constraint("Equal", 2, 3),
    Sketcher.Constraint("Horizontal", 0, 3, 2, 3),
    Sketcher.Constraint("Horizontal", 1, 3, 3, 3),
    Sketcher.Constraint("Vertical", 0, 3, 1, 3),
    Sketcher.Constraint("Vertical", 2, 3, 3, 3),
    Sketcher.Constraint("Diameter", 0, Q("3.2 mm")),
    Sketcher.Constraint("DistanceX", 0, 3, -1, 1, Q("56.3 mm")),
    Sketcher.Constraint("DistanceX", -1, 1, 2, 3, Q("20.3 mm")),
    Sketcher.Constraint("DistanceY", 0, 3, 1, 3, Q("61.72 mm")),
    Sketcher.Constraint("DistanceY", 0, 3, -1, 1, Q("61.0912 mm")),
])
sketch5.setExpression("Constraints[7]", "Params.sketch5_diameter")
doc.recompute()
hole = body.newObject("PartDesign::Hole", "Hole")
hole.Profile = sketch5
hole.ThreadType = "None"
hole.setExpression("Diameter", "Params.hole_diameter")
hole.DepthType = "ThroughAll"

# Sketch on XY plane
sketch6 = body.newObject("Sketcher::SketchObject", "Sketch005")
sketch6.AttachmentSupport = (doc.getObject("XY_Plane"), [""])
sketch6.MapMode = "FlatFace"
sketch6.AttachmentOffset = App.Placement(App.Vector(0, 0, 3), App.Rotation())
sketch6.addGeometry([
    Part.ArcOfCircle(Part.Circle(App.Vector(-45.6, 191.6, 0), App.Vector(0, 0, 1), 1.6), math.radians(135), math.radians(225)),  # 0
    Part.LineSegment(App.Vector(-46.8, 192.7, 0), App.Vector(-46.8, 190.5, 0)),  # 1
    Part.LineSegment(App.Vector(46.8, 190.5, 0), App.Vector(44.5, 190.5, 0)),  # 2
    Part.ArcOfCircle(Part.Circle(App.Vector(45.6, 191.6, 0), App.Vector(0, 0, 1), 1.6), math.radians(-135), math.radians(-45)),  # 3
    Part.LineSegment(App.Vector(-44.5, 190.5, 0), App.Vector(-46.8, 190.5, 0)),  # 4
    Part.ArcOfCircle(Part.Circle(App.Vector(-45.6, 191.6, 0), App.Vector(0, 0, 1), 1.6), math.radians(-135), math.radians(-45)),  # 5
    Part.LineSegment(App.Vector(46.8, 192.7, 0), App.Vector(46.8, 190.5, 0)),  # 6
    Part.ArcOfCircle(Part.Circle(App.Vector(45.6, 191.6, 0), App.Vector(0, 0, 1), 1.6), math.radians(-45), math.radians(45)),  # 7
], False)
sketch6.addConstraint([
    Sketcher.Constraint("Coincident", 0, 1, 1, 1),
    Sketcher.Constraint("Coincident", 1, 2, 0, 2),
    Sketcher.Constraint("Coincident", 2, 1, 3, 2),
    Sketcher.Constraint("Coincident", 3, 1, 2, 2),
    Sketcher.Constraint("Coincident", 4, 1, 5, 2),
    Sketcher.Constraint("Coincident", 5, 1, 4, 2),
    Sketcher.Constraint("Coincident", 6, 1, 7, 2),
    Sketcher.Constraint("Coincident", 7, 1, 6, 2),
    Sketcher.Constraint("Vertical", 1),
    Sketcher.Constraint("Horizontal", 2),
    Sketcher.Constraint("Horizontal", 4),
    Sketcher.Constraint("Vertical", 6),
    Sketcher.Constraint("Coincident", 5, 3, 0, 3),
    Sketcher.Constraint("Coincident", 7, 3, 3, 3),
    Sketcher.Constraint("Coincident", 5, 1, 1, 2),
    Sketcher.Constraint("Coincident", 7, 1, 2, 1),
    Sketcher.Constraint("Equal", 0, 3),
    Sketcher.Constraint("Symmetric", 0, 3, 3, 3, -2),
    Sketcher.Constraint("Horizontal", 1, 2, 2, 1),
    Sketcher.Constraint("Equal", 4, 1),
    Sketcher.Constraint("Radius", 0, Q("1.575 mm")),
    Sketcher.Constraint("DistanceY", -1, 1, 1, 2, Q("190.5 mm")),
    Sketcher.Constraint("DistanceX", 1, 2, 2, 1, Q("93.5 mm")),
])
pocket4 = body.newObject("PartDesign::Pocket", "Pocket003")
pocket4.Profile = sketch6
pocket4.setExpression("Length", "Params.pocket4_length")

doc.recompute()
